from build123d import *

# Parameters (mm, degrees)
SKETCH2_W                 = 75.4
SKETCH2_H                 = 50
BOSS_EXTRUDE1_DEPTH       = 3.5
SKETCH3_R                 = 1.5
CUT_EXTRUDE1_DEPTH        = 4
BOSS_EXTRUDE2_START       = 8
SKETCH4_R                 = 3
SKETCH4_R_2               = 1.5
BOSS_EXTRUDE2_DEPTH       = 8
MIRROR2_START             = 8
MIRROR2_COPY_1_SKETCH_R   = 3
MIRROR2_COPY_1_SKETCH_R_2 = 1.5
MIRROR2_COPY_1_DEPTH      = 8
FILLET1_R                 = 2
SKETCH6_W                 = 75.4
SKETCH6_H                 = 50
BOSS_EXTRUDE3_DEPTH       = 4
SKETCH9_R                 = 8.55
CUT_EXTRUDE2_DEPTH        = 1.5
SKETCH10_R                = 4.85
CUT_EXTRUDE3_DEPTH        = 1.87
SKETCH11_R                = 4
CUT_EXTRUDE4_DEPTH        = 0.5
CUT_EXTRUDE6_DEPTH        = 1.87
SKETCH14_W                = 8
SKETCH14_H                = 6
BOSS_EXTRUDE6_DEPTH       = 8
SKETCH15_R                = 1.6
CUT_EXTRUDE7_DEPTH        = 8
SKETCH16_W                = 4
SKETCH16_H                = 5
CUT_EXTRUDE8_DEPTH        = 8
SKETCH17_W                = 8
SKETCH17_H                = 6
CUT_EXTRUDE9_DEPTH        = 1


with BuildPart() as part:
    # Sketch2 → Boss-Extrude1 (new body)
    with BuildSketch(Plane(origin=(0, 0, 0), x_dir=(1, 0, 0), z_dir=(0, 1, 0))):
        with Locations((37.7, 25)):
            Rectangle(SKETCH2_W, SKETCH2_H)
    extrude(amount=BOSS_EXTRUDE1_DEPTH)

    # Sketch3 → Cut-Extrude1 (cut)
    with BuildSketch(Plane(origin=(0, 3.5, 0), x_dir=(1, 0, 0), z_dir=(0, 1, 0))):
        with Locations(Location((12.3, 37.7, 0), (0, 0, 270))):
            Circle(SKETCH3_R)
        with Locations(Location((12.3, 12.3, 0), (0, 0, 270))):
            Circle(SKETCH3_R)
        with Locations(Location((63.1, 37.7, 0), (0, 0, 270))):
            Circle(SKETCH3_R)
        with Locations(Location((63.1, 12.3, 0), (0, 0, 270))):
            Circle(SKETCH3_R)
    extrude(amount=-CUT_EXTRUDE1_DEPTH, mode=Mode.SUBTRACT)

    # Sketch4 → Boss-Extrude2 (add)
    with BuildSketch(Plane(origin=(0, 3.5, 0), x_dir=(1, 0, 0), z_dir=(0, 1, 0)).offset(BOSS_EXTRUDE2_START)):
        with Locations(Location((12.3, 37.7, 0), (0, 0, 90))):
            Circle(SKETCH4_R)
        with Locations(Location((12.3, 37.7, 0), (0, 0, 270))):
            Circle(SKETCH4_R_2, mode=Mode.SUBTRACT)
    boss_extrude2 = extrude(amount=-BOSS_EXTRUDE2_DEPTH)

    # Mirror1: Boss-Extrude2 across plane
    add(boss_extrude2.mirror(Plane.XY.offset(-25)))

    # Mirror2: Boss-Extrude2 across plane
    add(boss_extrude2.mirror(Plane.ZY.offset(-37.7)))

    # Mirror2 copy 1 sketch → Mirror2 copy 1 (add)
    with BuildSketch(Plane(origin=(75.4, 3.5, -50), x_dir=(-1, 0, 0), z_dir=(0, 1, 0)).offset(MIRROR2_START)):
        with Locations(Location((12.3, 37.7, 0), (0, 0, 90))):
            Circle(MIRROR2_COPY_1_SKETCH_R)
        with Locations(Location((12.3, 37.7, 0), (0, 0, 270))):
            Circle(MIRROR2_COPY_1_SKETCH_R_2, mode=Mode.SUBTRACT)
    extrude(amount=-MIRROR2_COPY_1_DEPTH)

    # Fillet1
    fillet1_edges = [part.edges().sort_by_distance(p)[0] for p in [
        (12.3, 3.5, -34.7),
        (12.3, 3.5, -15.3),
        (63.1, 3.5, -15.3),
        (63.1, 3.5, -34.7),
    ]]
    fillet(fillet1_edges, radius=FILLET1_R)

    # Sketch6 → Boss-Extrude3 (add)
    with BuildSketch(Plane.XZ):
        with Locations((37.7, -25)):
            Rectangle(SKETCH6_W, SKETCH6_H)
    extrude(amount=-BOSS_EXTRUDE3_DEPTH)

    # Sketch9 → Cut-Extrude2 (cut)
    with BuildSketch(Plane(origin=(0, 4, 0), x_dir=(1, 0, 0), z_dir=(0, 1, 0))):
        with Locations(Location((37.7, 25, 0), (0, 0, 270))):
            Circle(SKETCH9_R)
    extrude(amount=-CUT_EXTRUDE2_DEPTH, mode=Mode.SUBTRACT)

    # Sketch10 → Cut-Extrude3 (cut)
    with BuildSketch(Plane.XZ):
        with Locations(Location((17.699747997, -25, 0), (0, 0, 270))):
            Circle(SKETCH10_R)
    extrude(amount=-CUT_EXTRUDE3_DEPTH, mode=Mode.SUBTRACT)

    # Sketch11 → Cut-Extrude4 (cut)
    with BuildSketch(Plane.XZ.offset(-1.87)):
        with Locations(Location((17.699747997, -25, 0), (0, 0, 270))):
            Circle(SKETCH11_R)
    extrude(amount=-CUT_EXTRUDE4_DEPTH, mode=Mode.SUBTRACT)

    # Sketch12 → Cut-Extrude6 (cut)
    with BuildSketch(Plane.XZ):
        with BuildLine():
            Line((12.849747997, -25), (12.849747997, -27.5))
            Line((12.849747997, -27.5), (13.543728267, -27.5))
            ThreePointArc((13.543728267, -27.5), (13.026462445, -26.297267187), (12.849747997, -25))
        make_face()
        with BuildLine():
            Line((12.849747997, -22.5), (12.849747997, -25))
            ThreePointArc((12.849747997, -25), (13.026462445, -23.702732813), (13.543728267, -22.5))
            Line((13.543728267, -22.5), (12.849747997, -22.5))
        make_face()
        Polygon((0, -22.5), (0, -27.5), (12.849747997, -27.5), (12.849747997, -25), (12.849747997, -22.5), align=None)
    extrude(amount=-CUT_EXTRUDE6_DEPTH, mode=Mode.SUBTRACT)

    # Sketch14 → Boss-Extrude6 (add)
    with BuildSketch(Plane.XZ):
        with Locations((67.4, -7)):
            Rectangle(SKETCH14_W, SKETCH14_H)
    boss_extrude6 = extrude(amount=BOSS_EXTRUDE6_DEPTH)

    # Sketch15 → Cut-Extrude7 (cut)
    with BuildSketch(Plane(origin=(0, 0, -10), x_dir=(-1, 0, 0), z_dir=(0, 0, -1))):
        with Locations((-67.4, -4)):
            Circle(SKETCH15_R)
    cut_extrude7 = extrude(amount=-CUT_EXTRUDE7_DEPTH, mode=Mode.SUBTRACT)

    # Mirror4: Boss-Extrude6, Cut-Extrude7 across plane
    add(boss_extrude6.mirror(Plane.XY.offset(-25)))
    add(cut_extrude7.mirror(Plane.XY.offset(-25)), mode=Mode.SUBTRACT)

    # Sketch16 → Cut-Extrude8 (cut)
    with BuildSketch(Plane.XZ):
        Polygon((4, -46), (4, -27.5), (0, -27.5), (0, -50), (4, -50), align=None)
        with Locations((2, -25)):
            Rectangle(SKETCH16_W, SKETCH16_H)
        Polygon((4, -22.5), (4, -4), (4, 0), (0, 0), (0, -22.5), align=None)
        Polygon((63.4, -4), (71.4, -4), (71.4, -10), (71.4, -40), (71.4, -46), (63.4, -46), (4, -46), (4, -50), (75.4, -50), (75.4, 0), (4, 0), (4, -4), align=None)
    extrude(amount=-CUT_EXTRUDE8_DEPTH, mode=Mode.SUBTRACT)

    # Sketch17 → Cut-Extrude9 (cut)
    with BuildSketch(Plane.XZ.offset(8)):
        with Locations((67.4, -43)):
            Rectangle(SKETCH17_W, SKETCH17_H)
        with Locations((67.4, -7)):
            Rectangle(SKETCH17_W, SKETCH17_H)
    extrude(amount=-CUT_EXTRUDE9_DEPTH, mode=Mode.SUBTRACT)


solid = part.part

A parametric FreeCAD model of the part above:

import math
import FreeCAD as App
import Part
import Sketcher
Q = App.Units.Quantity


def edges_at(feature, points):
    """Names of the edges that pass closest to the given points."""
    edges = feature.Shape.Edges
    near = lambda p: min(range(len(edges)), key=lambda i: edges[i].distToShape(Part.Vertex(*p))[0])
    return sorted({f"Edge{near(p) + 1}" for p in points})

doc = App.newDocument("Part")
body = doc.addObject("PartDesign::Body", "Body")

# Sketch on XZ plane
sketch1 = body.newObject("Sketcher::SketchObject", "Sketch")
sketch1.AttachmentSupport = (doc.getObject("XZ_Plane"), [""])
sketch1.MapMode = "FlatFace"
sketch1.addGeometry([
    Part.LineSegment(App.Vector(0, -50, 0), App.Vector(0, 0, 0)),
    Part.LineSegment(App.Vector(0, 0, 0), App.Vector(75.4, 0, 0)),
    Part.LineSegment(App.Vector(75.4, 0, 0), App.Vector(75.4, -50, 0)),
    Part.LineSegment(App.Vector(75.4, -50, 0), App.Vector(0, -50, 0)),
], False)
sketch1.addConstraint([
    Sketcher.Constraint("Coincident", 0, 2, 1, 1),
    Sketcher.Constraint("Coincident", 1, 2, 2, 1),
    Sketcher.Constraint("Coincident", 2, 2, 3, 1),
    Sketcher.Constraint("Coincident", 3, 2, 0, 1),
    Sketcher.Constraint("Vertical", 0),
    Sketcher.Constraint("Horizontal", 1),
    Sketcher.Constraint("Vertical", 2),
    Sketcher.Constraint("Horizontal", 3),
    Sketcher.Constraint("Coincident", 0, 2, -1, 1),
    Sketcher.Constraint("DistanceY", 0, 1, 0, 2, Q("50 mm")),
    Sketcher.Constraint("DistanceX", 1, 1, 1, 2, Q("75.4 mm")),
])
pad1 = body.newObject("PartDesign::Pad", "Pad")
pad1.Profile = sketch1
pad1.Length = 3.5
pad1.Reversed = True

# Sketch on XZ plane
sketch2 = body.newObject("Sketcher::SketchObject", "Sketch001")
sketch2.AttachmentSupport = (doc.getObject("XZ_Plane"), [""])
sketch2.MapMode = "FlatFace"
sketch2.AttachmentOffset = App.Placement(App.Vector(0, 0, -3.5), App.Rotation())
sketch2.addGeometry([
    Part.Circle(App.Vector(12.3, -37.7, 0), App.Vector(0, 0, 1), 1.5),
    Part.Circle(App.Vector(12.3, -12.3, 0), App.Vector(0, 0, 1), 1.5),
    Part.Circle(App.Vector(63.1, -37.7, 0), App.Vector(0, 0, 1), 1.5),
    Part.Circle(App.Vector(63.1, -12.3, 0), App.Vector(0, 0, 1), 1.5),
], False)
sketch2.addConstraint([
    Sketcher.Constraint("Equal", 0, 1),
    Sketcher.Constraint("Equal", 1, 2),
    Sketcher.Constraint("Equal", 2, 3),
    Sketcher.Constraint("Horizontal", 0, 3, 2, 3),
    Sketcher.Constraint("Horizontal", 1, 3, 3, 3),
    Sketcher.Constraint("Vertical", 0, 3, 1, 3),
    Sketcher.Constraint("Vertical", 2, 3, 3, 3),
    Sketcher.Constraint("Diameter", 0, Q("3 mm")),
    Sketcher.Constraint("DistanceX", -1, 1, 0, 3, Q("12.3 mm")),
    Sketcher.Constraint("DistanceY", 0, 3, -1, 1, Q("37.7 mm")),
    Sketcher.Constraint("DistanceY", 1, 3, -1, 1, Q("12.3 mm")),
    Sketcher.Constraint("DistanceX", -1, 1, 2, 3, Q("63.1 mm")),
])
pocket1 = body.newObject("PartDesign::Pocket", "Pocket")
pocket1.Profile = sketch2
pocket1.Length = 4
pocket1.Reversed = True

# Sketch on XZ plane
sketch3 = body.newObject("Sketcher::SketchObject", "Sketch002")
sketch3.AttachmentSupport = (doc.getObject("XZ_Plane"), [""])
sketch3.MapMode = "FlatFace"
sketch3.AttachmentOffset = App.Placement(App.Vector(0, 0, -11.5), App.Rotation())
sketch3.addGeometry([
    Part.Circle(App.Vector(12.3, -37.7, 0), App.Vector(0, 0, 1), 3),
    Part.Circle(App.Vector(12.3, -37.7, 0), App.Vector(0, 0, 1), 1.5),
], False)
sketch3.addConstraint([
    Sketcher.Constraint("Coincident", 1, 3, 0, 3),
    Sketcher.Constraint("Diameter", 0, Q("6 mm")),
    Sketcher.Constraint("Diameter", 1, Q("3 mm")),
    Sketcher.Constraint("DistanceX", -1, 1, 0, 3, Q("12.3 mm")),
    Sketcher.Constraint("DistanceY", 0, 3, -1, 1, Q("37.7 mm")),
])
pad2 = body.newObject("PartDesign::Pad", "Pad001")
pad2.Profile = sketch3
pad2.Length = 8
doc.recompute()

datumplane = body.newObject("PartDesign::Plane", "DatumPlane")
datumplane.AttachmentSupport = (doc.getObject("XY_Plane"), [""])
datumplane.MapMode = "FlatFace"
datumplane.AttachmentOffset = App.Placement(App.Vector(0, 0, -25), App.Rotation())
mirrored = body.newObject("PartDesign::Mirrored", "Mirrored")
mirrored.Originals = [pad2]
mirrored.MirrorPlane = (datumplane, [""])
body.Tip = mirrored
doc.recompute()

datumplane2 = body.newObject("PartDesign::Plane", "DatumPlane001")
datumplane2.AttachmentSupport = (doc.getObject("YZ_Plane"), [""])
datumplane2.MapMode = "FlatFace"
datumplane2.AttachmentOffset = App.Placement(App.Vector(0, 0, 37.7), App.Rotation())
mirrored2 = body.newObject("PartDesign::Mirrored", "Mirrored001")
mirrored2.Originals = [pad2]
mirrored2.MirrorPlane = (datumplane2, [""])
body.Tip = mirrored2

# Sketch on XZ plane
sketch4 = body.newObject("Sketcher::SketchObject", "Sketch003")
sketch4.AttachmentSupport = (doc.getObject("XZ_Plane"), [""])
sketch4.MapMode = "FlatFace"
sketch4.AttachmentOffset = App.Placement(App.Vector(0, 0, -11.5), App.Rotation())
sketch4.addGeometry([
    Part.Circle(App.Vector(63.1, -12.3, 0), App.Vector(0, 0, 1), 3),
    Part.Circle(App.Vector(63.1, -12.3, 0), App.Vector(0, 0, 1), 1.5),
], False)
sketch4.addConstraint([
    Sketcher.Constraint("Coincident", 1, 3, 0, 3),
    Sketcher.Constraint("Diameter", 0, Q("6 mm")),
    Sketcher.Constraint("Diameter", 1, Q("3 mm")),
    Sketcher.Constraint("DistanceX", -1, 1, 0, 3, Q("63.1 mm")),
    Sketcher.Constraint("DistanceY", 0, 3, -1, 1, Q("12.3 mm")),
])
pad3 = body.newObject("PartDesign::Pad", "Pad002")
pad3.Profile = sketch4
pad3.Length = 8
doc.recompute()

fillet = body.newObject("PartDesign::Fillet", "Fillet")
fillet.Base = (pad3, edges_at(pad3, [
    (12.3, 3.5, -34.7),
    (12.3, 3.5, -15.3),
    (63.1, 3.5, -15.3),
    (63.1, 3.5, -34.7),
]))
fillet.Radius = 2

# Sketch on XZ plane
sketch5 = body.newObject("Sketcher::SketchObject", "Sketch004")
sketch5.AttachmentSupport = (doc.getObject("XZ_Plane"), [""])
sketch5.MapMode = "FlatFace"
sketch5.addGeometry([
    Part.LineSegment(App.Vector(0, 0, 0), App.Vector(0, -50, 0)),
    Part.LineSegment(App.Vector(0, -50, 0), App.Vector(75.4, -50, 0)),
    Part.LineSegment(App.Vector(75.4, -50, 0), App.Vector(75.4, 0, 0)),
    Part.LineSegment(App.Vector(75.4, 0, 0), App.Vector(0, 0, 0)),
], False)
sketch5.addConstraint([
    Sketcher.Constraint("Coincident", 0, 2, 1, 1),
    Sketcher.Constraint("Coincident", 1, 2, 2, 1),
    Sketcher.Constraint("Coincident", 2, 2, 3, 1),
    Sketcher.Constraint("Coincident", 3, 2, 0, 1),
    Sketcher.Constraint("Vertical", 0),
    Sketcher.Constraint("Horizontal", 1),
    Sketcher.Constraint("Vertical", 2),
    Sketcher.Constraint("Horizontal", 3),
    Sketcher.Constraint("Coincident", 3, 2, -1, 1),
    Sketcher.Constraint("DistanceY", 0, 2, 0, 1, Q("50 mm")),
    Sketcher.Constraint("DistanceX", 1, 1, 1, 2, Q("75.4 mm")),
])
pad4 = body.newObject("PartDesign::Pad", "Pad003")
pad4.Profile = sketch5
pad4.Length = 4
pad4.Reversed = True

# Sketch on XZ plane
sketch6 = body.newObject("Sketcher::SketchObject", "Sketch005")
sketch6.AttachmentSupport = (doc.getObject("XZ_Plane"), [""])
sketch6.MapMode = "FlatFace"
sketch6.AttachmentOffset = App.Placement(App.Vector(0, 0, -4), App.Rotation())
sketch6.addGeometry(Part.Circle(App.Vector(37.7, -25, 0), App.Vector(0, 0, 1), 8.55), False)
sketch6.addConstraint([
    Sketcher.Constraint("Diameter", 0, Q("17.1 mm")),
    Sketcher.Constraint("DistanceY", 0, 3, -1, 1, Q("25 mm")),
    Sketcher.Constraint("DistanceX", -1, 1, 0, 3, Q("37.7 mm")),
])
pocket2 = body.newObject("PartDesign::Pocket", "Pocket001")
pocket2.Profile = sketch6
pocket2.Length = 1.5
pocket2.Reversed = True

# Sketch on XZ plane
sketch7 = body.newObject("Sketcher::SketchObject", "Sketch006")
sketch7.AttachmentSupport = (doc.getObject("XZ_Plane"), [""])
sketch7.MapMode = "FlatFace"
sketch7.addGeometry(Part.Circle(App.Vector(17.699748, -25, 0), App.Vector(0, 0, 1), 4.85), False)
sketch7.addConstraint([
    Sketcher.Constraint("Diameter", 0, Q("9.7 mm")),
    Sketcher.Constraint("DistanceY", 0, 3, -1, 1, Q("25 mm")),
    Sketcher.Constraint("DistanceX", -1, 1, 0, 3, Q("17.699748 mm")),
])
pocket3 = body.newObject("PartDesign::Pocket", "Pocket002")
pocket3.Profile = sketch7
pocket3.Length = 1.87

# Sketch on XZ plane
sketch8 = body.newObject("Sketcher::SketchObject", "Sketch007")
sketch8.AttachmentSupport = (doc.getObject("XZ_Plane"), [""])
sketch8.MapMode = "FlatFace"
sketch8.AttachmentOffset = App.Placement(App.Vector(0, 0, -1.87), App.Rotation())
sketch8.addGeometry(Part.Circle(App.Vector(17.699748, -25, 0), App.Vector(0, 0, 1), 4), False)
sketch8.addConstraint([
    Sketcher.Constraint("Diameter", 0, Q("8 mm")),
    Sketcher.Constraint("DistanceY", 0, 3, -1, 1, Q("25 mm")),
    Sketcher.Constraint("DistanceX", -1, 1, 0, 3, Q("17.699748 mm")),
])
pocket4 = body.newObject("PartDesign::Pocket", "Pocket003")
pocket4.Profile = sketch8
pocket4.Length = 0.5

# Sketch on XZ plane
sketch9 = body.newObject("Sketcher::SketchObject", "Sketch008")
sketch9.AttachmentSupport = (doc.getObject("XZ_Plane"), [""])
sketch9.MapMode = "FlatFace"
sketch9.addGeometry([
    Part.ArcOfCircle(Part.Circle(App.Vector(17.699748, -25, 0), App.Vector(0, 0, 1), 4.85), math.radians(180), math.radians(211.028469)),  # 0
    Part.ArcOfCircle(Part.Circle(App.Vector(17.699748, -25, 0), App.Vector(0, 0, 1), 4.85), math.radians(148.971531), math.radians(180)),  # 1
    Part.LineSegment(App.Vector(13.543728, -22.5, 0), App.Vector(0, -22.5, 0)),  # 2
    Part.LineSegment(App.Vector(0, -22.5, 0), App.Vector(0, -27.5, 0)),  # 3
    Part.LineSegment(App.Vector(0, -27.5, 0), App.Vector(13.543728, -27.5, 0)),  # 4
], False)
sketch9.addConstraint([
    Sketcher.Constraint("Tangent", 0, 1, 1, 2),
    Sketcher.Constraint("Coincident", 1, 1, 2, 1),
    Sketcher.Constraint("Coincident", 2, 2, 3, 1),
    Sketcher.Constraint("Coincident", 3, 2, 4, 1),
    Sketcher.Constraint("Coincident", 4, 2, 0, 2),
    Sketcher.Constraint("Horizontal", 2),
    Sketcher.Constraint("Vertical", 3),
    Sketcher.Constraint("Horizontal", 4),
    Sketcher.Constraint("Equal", 0, 1),
    Sketcher.Constraint("PointOnObject", 2, 2, -2),
    Sketcher.Constraint("Horizontal", 1, 3, 0, 1),
    Sketcher.Constraint("Vertical", 1, 1, 4, 2),
    Sketcher.Constraint("DistanceY", 3, 2, 3, 1, Q("5 mm")),
    Sketcher.Constraint("Radius", 0, Q("4.85 mm")),
    Sketcher.Constraint("DistanceY", 0, 3, -1, 1, Q("25 mm")),
    Sketcher.Constraint("DistanceX", 2, 2, 2, 1, Q("13.543728 mm")),
])
pocket5 = body.newObject("PartDesign::Pocket", "Pocket004")
pocket5.Profile = sketch9
pocket5.Length = 1.87

# Sketch on XZ plane
sketch10 = body.newObject("Sketcher::SketchObject", "Sketch009")
sketch10.AttachmentSupport = (doc.getObject("XZ_Plane"), [""])
sketch10.MapMode = "FlatFace"
sketch10.addGeometry([
    Part.LineSegment(App.Vector(63.4, -4, 0), App.Vector(63.4, -10, 0)),
    Part.LineSegment(App.Vector(63.4, -10, 0), App.Vector(71.4, -10, 0)),
    Part.LineSegment(App.Vector(71.4, -10, 0), App.Vector(71.4, -4, 0)),
    Part.LineSegment(App.Vector(71.4, -4, 0), App.Vector(63.4, -4, 0)),
], False)
sketch10.addConstraint([
    Sketcher.Constraint("Coincident", 0, 2, 1, 1),
    Sketcher.Constraint("Coincident", 1, 2, 2, 1),
    Sketcher.Constraint("Coincident", 2, 2, 3, 1),
    Sketcher.Constraint("Coincident", 3, 2, 0, 1),
    Sketcher.Constraint("Vertical", 0),
    Sketcher.Constraint("Horizontal", 1),
    Sketcher.Constraint("Vertical", 2),
    Sketcher.Constraint("Horizontal", 3),
    Sketcher.Constraint("DistanceX", 1, 1, 1, 2, Q("8 mm")),
    Sketcher.Constraint("DistanceY", 0, 2, 0, 1, Q("6 mm")),
    Sketcher.Constraint("DistanceY", 0, 2, -1, 1, Q("10 mm")),
    Sketcher.Constraint("DistanceX", -1, 1, 0, 2, Q("63.4 mm")),
])
pad5 = body.newObject("PartDesign::Pad", "Pad004")
pad5.Profile = sketch10
pad5.Length = 8

# Sketch on XY plane
sketch11 = body.newObject("Sketcher::SketchObject", "Sketch010")
sketch11.AttachmentSupport = (doc.getObject("XY_Plane"), [""])
sketch11.MapMode = "FlatFace"
sketch11.AttachmentOffset = App.Placement(App.Vector(0, 0, -10), App.Rotation())
sketch11.addGeometry(Part.Circle(App.Vector(67.4, -4, 0), App.Vector(0, 0, 1), 1.6), False)
sketch11.addConstraint([
    Sketcher.Constraint("Diameter", 0, Q("3.2 mm")),
    Sketcher.Constraint("DistanceY", 0, 3, -1, 1, Q("4 mm")),
    Sketcher.Constraint("DistanceX", -1, 1, 0, 3, Q("67.4 mm")),
])
pocket6 = body.newObject("PartDesign::Pocket", "Pocket005")
pocket6.Profile = sketch11
pocket6.Length = 8
pocket6.Reversed = True
doc.recompute()

datumplane3 = body.newObject("PartDesign::Plane", "DatumPlane002")
datumplane3.AttachmentSupport = (doc.getObject("XY_Plane"), [""])
datumplane3.MapMode = "FlatFace"
datumplane3.AttachmentOffset = App.Placement(App.Vector(0, 0, -25), App.Rotation())
mirrored3 = body.newObject("PartDesign::Mirrored", "Mirrored002")
mirrored3.Originals = [pad5, pocket6]
mirrored3.MirrorPlane = (datumplane3, [""])
body.Tip = mirrored3

# Sketch on XZ plane
sketch12 = body.newObject("Sketcher::SketchObject", "Sketch011")
sketch12.AttachmentSupport = (doc.getObject("XZ_Plane"), [""])
sketch12.MapMode = "FlatFace"
sketch12.addGeometry([
    Part.LineSegment(App.Vector(0, -50, 0), App.Vector(75.4, -50, 0)),  # 0
    Part.LineSegment(App.Vector(75.4, -50, 0), App.Vector(75.4, 0, 0)),  # 1
    Part.LineSegment(App.Vector(75.4, 0, 0), App.Vector(0, 0, 0)),  # 2
    Part.LineSegment(App.Vector(0, 0, 0), App.Vector(0, -50, 0)),  # 3
    Part.LineSegment(App.Vector(4, -46, 0), App.Vector(4, -4, 0)),  # 4
    Part.LineSegment(App.Vector(4, -4, 0), App.Vector(71.4, -4, 0)),  # 5
    Part.LineSegment(App.Vector(71.4, -4, 0), App.Vector(71.4, -46, 0)),  # 6
    Part.LineSegment(App.Vector(71.4, -46, 0), App.Vector(4, -46, 0)),  # 7
], False)
sketch12.addConstraint([
    Sketcher.Constraint("Coincident", 0, 2, 1, 1),
    Sketcher.Constraint("Coincident", 1, 2, 2, 1),
    Sketcher.Constraint("Coincident", 2, 2, 3, 1),
    Sketcher.Constraint("Coincident", 3, 2, 0, 1),
    Sketcher.Constraint("Coincident", 4, 2, 5, 1),
    Sketcher.Constraint("Coincident", 5, 2, 6, 1),
    Sketcher.Constraint("Coincident", 6, 2, 7, 1),
    Sketcher.Constraint("Coincident", 7, 2, 4, 1),
    Sketcher.Constraint("Horizontal", 0),
    Sketcher.Constraint("Vertical", 1),
    Sketcher.Constraint("Horizontal", 2),
    Sketcher.Constraint("Vertical", 3),
    Sketcher.Constraint("Vertical", 4),
    Sketcher.Constraint("Horizontal", 5),
    Sketcher.Constraint("Vertical", 6),
    Sketcher.Constraint("Horizontal", 7),
    Sketcher.Constraint("Coincident", 2, 2, -1, 1),
    Sketcher.Constraint("DistanceY", 1, 1, 1, 2, Q("50 mm")),
    Sketcher.Constraint("DistanceY", 4, 1, 4, 2, Q("42 mm")),
    Sketcher.Constraint("DistanceX", 0, 1, 0, 2, Q("75.4 mm")),
    Sketcher.Constraint("DistanceX", 5, 1, 5, 2, Q("67.4 mm")),
    Sketcher.Constraint("DistanceX", -1, 1, 4, 2, Q("4 mm")),
    Sketcher.Constraint("DistanceY", 4, 2, -1, 1, Q("4 mm")),
])
pocket7 = body.newObject("PartDesign::Pocket", "Pocket006")
pocket7.Profile = sketch12
pocket7.Length = 8

# Sketch on XZ plane
sketch13 = body.newObject("Sketcher::SketchObject", "Sketch012")
sketch13.AttachmentSupport = (doc.getObject("XZ_Plane"), [""])
sketch13.MapMode = "FlatFace"
sketch13.AttachmentOffset = App.Placement(App.Vector(0, 0, 8), App.Rotation())
sketch13.addGeometry([
    Part.LineSegment(App.Vector(63.4, -40, 0), App.Vector(63.4, -46, 0)),  # 0
    Part.LineSegment(App.Vector(63.4, -46, 0), App.Vector(71.4, -46, 0)),  # 1
    Part.LineSegment(App.Vector(71.4, -46, 0), App.Vector(71.4, -40, 0)),  # 2
    Part.LineSegment(App.Vector(71.4, -40, 0), App.Vector(63.4, -40, 0)),  # 3
    Part.LineSegment(App.Vector(63.4, -4, 0), App.Vector(63.4, -10, 0)),  # 4
    Part.LineSegment(App.Vector(63.4, -10, 0), App.Vector(71.4, -10, 0)),  # 5
    Part.LineSegment(App.Vector(71.4, -10, 0), App.Vector(71.4, -4, 0)),  # 6
    Part.LineSegment(App.Vector(71.4, -4, 0), App.Vector(63.4, -4, 0)),  # 7
], False)
sketch13.addConstraint([
    Sketcher.Constraint("Coincident", 0, 2, 1, 1),
    Sketcher.Constraint("Coincident", 1, 2, 2, 1),
    Sketcher.Constraint("Coincident", 2, 2, 3, 1),
    Sketcher.Constraint("Coincident", 3, 2, 0, 1),
    Sketcher.Constraint("Coincident", 4, 2, 5, 1),
    Sketcher.Constraint("Coincident", 5, 2, 6, 1),
    Sketcher.Constraint("Coincident", 6, 2, 7, 1),
    Sketcher.Constraint("Coincident", 7, 2, 4, 1),
    Sketcher.Constraint("Vertical", 0),
    Sketcher.Constraint("Horizontal", 1),
    Sketcher.Constraint("Vertical", 2),
    Sketcher.Constraint("Horizontal", 3),
    Sketcher.Constraint("Vertical", 4),
    Sketcher.Constraint("Horizontal", 5),
    Sketcher.Constraint("Vertical", 6),
    Sketcher.Constraint("Horizontal", 7),
    Sketcher.Constraint("Vertical", 3, 2, 4, 2),
    Sketcher.Constraint("Vertical", 2, 2, 5, 2),
    Sketcher.Constraint("Equal", 2, 4),
    Sketcher.Constraint("DistanceX", 1, 1, 1, 2, Q("8 mm")),
    Sketcher.Constraint("DistanceY", 0, 2, 0, 1, Q("6 mm")),
    Sketcher.Constraint("DistanceY", 0, 2, -1, 1, Q("46 mm")),
    Sketcher.Constraint("DistanceY", 4, 2, -1, 1, Q("10 mm")),
    Sketcher.Constraint("DistanceX", -1, 1, 0, 2, Q("63.4 mm")),
])
pocket8 = body.newObject("PartDesign::Pocket", "Pocket007")
pocket8.Profile = sketch13
pocket8.Length = 1

doc.recompute()
